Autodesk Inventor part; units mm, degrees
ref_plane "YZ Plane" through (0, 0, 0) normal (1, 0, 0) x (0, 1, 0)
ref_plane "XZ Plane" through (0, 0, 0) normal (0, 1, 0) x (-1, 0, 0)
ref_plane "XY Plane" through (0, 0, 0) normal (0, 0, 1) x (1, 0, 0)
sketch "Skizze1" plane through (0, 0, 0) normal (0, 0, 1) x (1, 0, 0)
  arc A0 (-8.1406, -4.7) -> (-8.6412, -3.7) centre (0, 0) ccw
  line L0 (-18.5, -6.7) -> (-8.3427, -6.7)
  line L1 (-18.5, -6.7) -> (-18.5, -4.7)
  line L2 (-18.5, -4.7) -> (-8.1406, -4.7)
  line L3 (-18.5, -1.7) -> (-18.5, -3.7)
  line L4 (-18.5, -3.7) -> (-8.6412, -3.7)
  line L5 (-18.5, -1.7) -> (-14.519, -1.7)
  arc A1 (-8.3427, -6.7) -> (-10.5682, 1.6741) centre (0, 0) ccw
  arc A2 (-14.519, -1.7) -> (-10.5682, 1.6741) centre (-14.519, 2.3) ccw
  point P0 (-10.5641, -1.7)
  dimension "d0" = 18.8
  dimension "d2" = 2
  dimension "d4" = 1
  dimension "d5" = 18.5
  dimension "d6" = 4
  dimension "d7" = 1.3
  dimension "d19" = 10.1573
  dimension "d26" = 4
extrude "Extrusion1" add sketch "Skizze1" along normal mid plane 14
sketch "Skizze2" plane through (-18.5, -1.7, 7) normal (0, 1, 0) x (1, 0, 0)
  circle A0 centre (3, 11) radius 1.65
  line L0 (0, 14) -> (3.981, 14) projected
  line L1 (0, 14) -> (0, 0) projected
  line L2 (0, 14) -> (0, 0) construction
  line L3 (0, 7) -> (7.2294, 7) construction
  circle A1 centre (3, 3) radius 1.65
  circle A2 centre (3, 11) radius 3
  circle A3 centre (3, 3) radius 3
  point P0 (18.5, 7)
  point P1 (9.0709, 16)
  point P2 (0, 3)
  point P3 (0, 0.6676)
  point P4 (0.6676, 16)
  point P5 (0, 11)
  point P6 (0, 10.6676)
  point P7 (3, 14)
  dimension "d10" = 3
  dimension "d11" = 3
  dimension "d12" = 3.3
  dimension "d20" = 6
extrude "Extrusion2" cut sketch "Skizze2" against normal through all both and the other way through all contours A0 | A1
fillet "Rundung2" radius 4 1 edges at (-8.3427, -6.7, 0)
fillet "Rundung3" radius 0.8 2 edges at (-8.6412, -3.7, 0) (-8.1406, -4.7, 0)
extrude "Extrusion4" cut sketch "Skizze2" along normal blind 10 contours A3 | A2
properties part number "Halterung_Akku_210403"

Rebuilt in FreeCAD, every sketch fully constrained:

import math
import FreeCAD as App
import Part
import Sketcher
from FreeCAD import Vector
Q = App.Units.Quantity


def edges_at(feature, points):
    """Names of the edges that pass closest to the given points."""
    edges = feature.Shape.Edges
    near = lambda p: min(range(len(edges)), key=lambda i: edges[i].distToShape(Part.Vertex(*p))[0])
    return sorted({f"Edge{near(p) + 1}" for p in points})

doc = App.newDocument("Part")
body = doc.addObject("PartDesign::Body", "Body")

# Sketch on XY plane
sketch1 = doc.addObject("Sketcher::SketchObject", "Sketch")
body.addObject(sketch1)
sketch1.AttachmentSupport = (doc.XY_Plane, [""])
sketch1.MapMode = "FlatFace"
sketch1.addGeometry([
    Part.ArcOfCircle(Part.Circle(Vector(0, 0, 0), Vector(0, 0, 1), 9.4), math.radians(-150), math.radians(203)),  # 0
    Part.LineSegment(Vector(-8.1, -4.7, 0), Vector(-18.5, -4.7, 0)),  # 1
    Part.LineSegment(Vector(-18.5, -4.7, 0), Vector(-18.5, -6.7, 0)),  # 2
    Part.LineSegment(Vector(-18.5, -6.7, 0), Vector(-8.3, -6.7, 0)),  # 3
    Part.ArcOfCircle(Part.Circle(Vector(0, 0, 0), Vector(0, 0, 1), 10.7), math.radians(-141), math.radians(171)),  # 4
    Part.ArcOfCircle(Part.Circle(Vector(-14.5, 2.3, 0), Vector(0, 0, 1), 4), math.radians(-90), math.radians(-9)),  # 5
    Part.LineSegment(Vector(-14.5, -1.7, 0), Vector(-18.5, -1.7, 0)),  # 6
    Part.LineSegment(Vector(-18.5, -1.7, 0), Vector(-18.5, -3.7, 0)),  # 7
    Part.LineSegment(Vector(-18.5, -3.7, 0), Vector(-8.6, -3.7, 0)),  # 8
], False)
sketch1.addConstraint([
    Sketcher.Constraint("Coincident", 0, 1, 1, 1),
    Sketcher.Constraint("Coincident", 1, 2, 2, 1),
    Sketcher.Constraint("Coincident", 2, 2, 3, 1),
    Sketcher.Constraint("Coincident", 3, 2, 4, 1),
    Sketcher.Constraint("Tangent", 4, 2, 5, 2),
    Sketcher.Constraint("Tangent", 5, 1, 6, 1),
    Sketcher.Constraint("Coincident", 6, 2, 7, 1),
    Sketcher.Constraint("Coincident", 7, 2, 8, 1),
    Sketcher.Constraint("Coincident", 8, 2, 0, 2),
    Sketcher.Constraint("Horizontal", 1),
    Sketcher.Constraint("Vertical", 2),
    Sketcher.Constraint("Horizontal", 3),
    Sketcher.Constraint("Horizontal", 6),
    Sketcher.Constraint("Vertical", 7),
    Sketcher.Constraint("Horizontal", 8),
    Sketcher.Constraint("Coincident", 0, 3, -1, 1),
    Sketcher.Constraint("Coincident", 4, 3, -1, 1),
    Sketcher.Constraint("Vertical", 2, 2, 6, 2),
    Sketcher.Constraint("Equal", 2, 7),
    Sketcher.Constraint("Radius", 5, Q("4 mm")),
    Sketcher.Constraint("Radius", 0, Q("9.4 mm")),
    Sketcher.Constraint("DistanceY", 2, 2, 2, 1, Q("2 mm")),
    Sketcher.Constraint("DistanceY", 1, 2, 7, 2, Q("1 mm")),
    Sketcher.Constraint("DistanceX", 1, 2, -1, 1, Q("18.5 mm")),
    Sketcher.Constraint("Radius", 4, Q("10.7 mm")),
    Sketcher.Constraint("DistanceX", 3, 1, 3, 2, Q("10.1573 mm")),
])
pad1 = doc.addObject("PartDesign::Pad", "Pad")
body.addObject(pad1)
pad1.Profile = sketch1
pad1.Length = 14
pad1.Midplane = True

# Sketch on XZ plane
sketch2 = doc.addObject("Sketcher::SketchObject", "Sketch001")
body.addObject(sketch2)
sketch2.AttachmentSupport = (doc.XZ_Plane, [""])
sketch2.MapMode = "FlatFace"
sketch2.AttachmentOffset = App.Placement(Vector(0, 0, 1.7), App.Rotation())
sketch2.addGeometry([
    Part.Circle(Vector(-15.5, -4, 0), Vector(0, 0, 1), 1.6),
    Part.Circle(Vector(-15.5, 4, 0), Vector(0, 0, 1), 1.6),
], False)
sketch2.addConstraint([
    Sketcher.Constraint("Equal", 0, 1),
    Sketcher.Constraint("Symmetric", 0, 3, 1, 3, -1),
    Sketcher.Constraint("Diameter", 0, Q("3.3 mm")),
    Sketcher.Constraint("DistanceY", 0, 3, -1, 1, Q("4 mm")),
    Sketcher.Constraint("DistanceX", 0, 3, -1, 1, Q("15.5 mm")),
])
pocket1 = doc.addObject("PartDesign::Pocket", "Pocket")
body.addObject(pocket1)
pocket1.Profile = sketch2
pocket1.Type = "ThroughAll"
pocket1.Midplane = True
doc.recompute()

fillet = doc.addObject("PartDesign::Fillet", "Fillet")
body.addObject(fillet)
fillet.Base = (pocket1, edges_at(pocket1, [(-8.343, -6.7, 0)]))
fillet.Radius = 4
doc.recompute()

fillet2 = doc.addObject("PartDesign::Fillet", "Fillet001")
body.addObject(fillet2)
fillet2.Base = (fillet, edges_at(fillet, [(-8.641, -3.7, 0), (-8.141, -4.7, 0)]))
fillet2.Radius = 0.8

# Sketch on XZ plane
sketch3 = doc.addObject("Sketcher::SketchObject", "Sketch002")
body.addObject(sketch3)
sketch3.AttachmentSupport = (doc.XZ_Plane, [""])
sketch3.MapMode = "FlatFace"
sketch3.AttachmentOffset = App.Placement(Vector(0, 0, 1.7), App.Rotation())
sketch3.addGeometry([
    Part.Circle(Vector(-15.5, 4, 0), Vector(0, 0, 1), 3),
    Part.Circle(Vector(-15.5, 4, 0), Vector(0, 0, 1), 1.6),
    Part.Circle(Vector(-15.5, -4, 0), Vector(0, 0, 1), 3),
    Part.Circle(Vector(-15.5, -4, 0), Vector(0, 0, 1), 1.6),
], False)
sketch3.addConstraint([
    Sketcher.Constraint("Coincident", 1, 3, 0, 3),
    Sketcher.Constraint("Coincident", 3, 3, 2, 3),
    Sketcher.Constraint("Equal", 0, 2),
    Sketcher.Constraint("Equal", 1, 3),
    Sketcher.Constraint("Symmetric", 0, 3, 2, 3, -1),
    Sketcher.Constraint("Diameter", 0, Q("6 mm")),
    Sketcher.Constraint("Diameter", 1, Q("3.3 mm")),
    Sketcher.Constraint("DistanceY", -1, 1, 0, 3, Q("4 mm")),
    Sketcher.Constraint("DistanceX", 0, 3, -1, 1, Q("15.5 mm")),
])
pocket2 = doc.addObject("PartDesign::Pocket", "Pocket001")
body.addObject(pocket2)
pocket2.Profile = sketch3
pocket2.Length = 10

doc.recompute()
